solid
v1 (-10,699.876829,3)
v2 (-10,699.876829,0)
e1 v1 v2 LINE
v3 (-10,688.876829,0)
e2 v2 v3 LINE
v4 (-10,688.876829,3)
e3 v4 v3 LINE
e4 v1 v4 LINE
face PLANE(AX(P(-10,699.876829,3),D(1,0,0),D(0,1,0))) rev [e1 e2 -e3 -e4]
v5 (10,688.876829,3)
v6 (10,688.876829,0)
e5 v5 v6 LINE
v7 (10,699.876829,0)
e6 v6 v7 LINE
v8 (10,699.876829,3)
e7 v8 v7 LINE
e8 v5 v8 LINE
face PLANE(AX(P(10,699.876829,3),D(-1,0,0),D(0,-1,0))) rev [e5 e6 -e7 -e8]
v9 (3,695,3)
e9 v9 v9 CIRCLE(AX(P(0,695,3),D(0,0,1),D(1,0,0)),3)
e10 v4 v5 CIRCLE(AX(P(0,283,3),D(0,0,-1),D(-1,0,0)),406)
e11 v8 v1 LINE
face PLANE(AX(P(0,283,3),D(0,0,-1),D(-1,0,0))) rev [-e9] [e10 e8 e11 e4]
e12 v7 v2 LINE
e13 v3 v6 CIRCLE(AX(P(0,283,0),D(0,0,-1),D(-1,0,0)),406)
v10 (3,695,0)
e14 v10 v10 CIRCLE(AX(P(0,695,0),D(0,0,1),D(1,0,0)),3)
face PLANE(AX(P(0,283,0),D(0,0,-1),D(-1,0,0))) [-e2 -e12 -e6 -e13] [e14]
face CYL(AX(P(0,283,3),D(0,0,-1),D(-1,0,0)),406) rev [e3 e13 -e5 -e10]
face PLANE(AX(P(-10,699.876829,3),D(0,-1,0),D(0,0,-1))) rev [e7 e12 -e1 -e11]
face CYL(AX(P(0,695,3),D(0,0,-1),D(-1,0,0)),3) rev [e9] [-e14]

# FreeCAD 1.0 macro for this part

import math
import FreeCAD as App
import Part
import Sketcher

V = App.Vector
Q = App.Units.Quantity

doc = App.newDocument("Part")
params = doc.addObject("Spreadsheet::Sheet", "Params")
for row, (alias, value) in enumerate([
    ("sketch1_diameter", "6 mm"),
    ("sketch1_radius", "406 mm"),
    ("sketch1_width", "20 mm"),
    ("sketch1_height", "11 mm"),
    ("pad1_length", "3 mm"),
], start=1):
    params.set(f"A{row}", alias)
    params.set(f"B{row}", "=" + value)
    params.setAlias(f"B{row}", alias)

body = doc.addObject("PartDesign::Body", "Body")

sketch1 = body.newObject("Sketcher::SketchObject", "Sketch")
sketch1.AttachmentSupport = (doc.getObject("XY_Plane"), [""])
sketch1.MapMode = "FlatFace"
sketch1.addGeometry([
    Part.LineSegment(V(10, 699.9, 0), V(-10, 699.9, 0)),
    Part.LineSegment(V(-10, 699.9, 0), V(-10, 688.9, 0)),
    Part.ArcOfCircle(Part.Circle(V(0, 283, 0), V(0, 0, 1), 406), math.radians(88.59), math.radians(91.41)),
    Part.LineSegment(V(10, 688.9, 0), V(10, 699.9, 0)),
    Part.Circle(V(0, 695, 0), V(0, 0, 1), 3),
], False)
sketch1.addConstraint([
    Sketcher.Constraint("Coincident", 0, 2, 1, 1),
    Sketcher.Constraint("Coincident", 1, 2, 2, 2),
    Sketcher.Constraint("Coincident", 2, 1, 3, 1),
    Sketcher.Constraint("Coincident", 3, 2, 0, 1),
    Sketcher.Constraint("Horizontal", 0),
    Sketcher.Constraint("Vertical", 1),
    Sketcher.Constraint("Vertical", 3),
    Sketcher.Constraint("Symmetric", 1, 2, 2, 1, -2),
    Sketcher.Constraint("PointOnObject", 4, 3, -2),
    Sketcher.Constraint("Diameter", 4, Q("6 mm")),
    Sketcher.Constraint("Radius", 2, Q("406 mm")),
    Sketcher.Constraint("DistanceX", 0, 2, 0, 1, Q("20 mm")),
    Sketcher.Constraint("DistanceY", 1, 2, 1, 1, Q("11 mm")),
    Sketcher.Constraint("DistanceY", -1, 1, 2, 3, Q("283 mm")),
    Sketcher.Constraint("DistanceY", -1, 1, 4, 3, Q("695 mm")),
])
sketch1.setExpression("Constraints[9]", "Params.sketch1_diameter")
sketch1.setExpression("Constraints[10]", "Params.sketch1_radius")
sketch1.setExpression("Constraints[11]", "Params.sketch1_width")
sketch1.setExpression("Constraints[12]", "Params.sketch1_height")
pad1 = body.newObject("PartDesign::Pad", "Pad")
pad1.Profile = sketch1
pad1.setExpression("Length", "Params.pad1_length")

doc.recompute()
